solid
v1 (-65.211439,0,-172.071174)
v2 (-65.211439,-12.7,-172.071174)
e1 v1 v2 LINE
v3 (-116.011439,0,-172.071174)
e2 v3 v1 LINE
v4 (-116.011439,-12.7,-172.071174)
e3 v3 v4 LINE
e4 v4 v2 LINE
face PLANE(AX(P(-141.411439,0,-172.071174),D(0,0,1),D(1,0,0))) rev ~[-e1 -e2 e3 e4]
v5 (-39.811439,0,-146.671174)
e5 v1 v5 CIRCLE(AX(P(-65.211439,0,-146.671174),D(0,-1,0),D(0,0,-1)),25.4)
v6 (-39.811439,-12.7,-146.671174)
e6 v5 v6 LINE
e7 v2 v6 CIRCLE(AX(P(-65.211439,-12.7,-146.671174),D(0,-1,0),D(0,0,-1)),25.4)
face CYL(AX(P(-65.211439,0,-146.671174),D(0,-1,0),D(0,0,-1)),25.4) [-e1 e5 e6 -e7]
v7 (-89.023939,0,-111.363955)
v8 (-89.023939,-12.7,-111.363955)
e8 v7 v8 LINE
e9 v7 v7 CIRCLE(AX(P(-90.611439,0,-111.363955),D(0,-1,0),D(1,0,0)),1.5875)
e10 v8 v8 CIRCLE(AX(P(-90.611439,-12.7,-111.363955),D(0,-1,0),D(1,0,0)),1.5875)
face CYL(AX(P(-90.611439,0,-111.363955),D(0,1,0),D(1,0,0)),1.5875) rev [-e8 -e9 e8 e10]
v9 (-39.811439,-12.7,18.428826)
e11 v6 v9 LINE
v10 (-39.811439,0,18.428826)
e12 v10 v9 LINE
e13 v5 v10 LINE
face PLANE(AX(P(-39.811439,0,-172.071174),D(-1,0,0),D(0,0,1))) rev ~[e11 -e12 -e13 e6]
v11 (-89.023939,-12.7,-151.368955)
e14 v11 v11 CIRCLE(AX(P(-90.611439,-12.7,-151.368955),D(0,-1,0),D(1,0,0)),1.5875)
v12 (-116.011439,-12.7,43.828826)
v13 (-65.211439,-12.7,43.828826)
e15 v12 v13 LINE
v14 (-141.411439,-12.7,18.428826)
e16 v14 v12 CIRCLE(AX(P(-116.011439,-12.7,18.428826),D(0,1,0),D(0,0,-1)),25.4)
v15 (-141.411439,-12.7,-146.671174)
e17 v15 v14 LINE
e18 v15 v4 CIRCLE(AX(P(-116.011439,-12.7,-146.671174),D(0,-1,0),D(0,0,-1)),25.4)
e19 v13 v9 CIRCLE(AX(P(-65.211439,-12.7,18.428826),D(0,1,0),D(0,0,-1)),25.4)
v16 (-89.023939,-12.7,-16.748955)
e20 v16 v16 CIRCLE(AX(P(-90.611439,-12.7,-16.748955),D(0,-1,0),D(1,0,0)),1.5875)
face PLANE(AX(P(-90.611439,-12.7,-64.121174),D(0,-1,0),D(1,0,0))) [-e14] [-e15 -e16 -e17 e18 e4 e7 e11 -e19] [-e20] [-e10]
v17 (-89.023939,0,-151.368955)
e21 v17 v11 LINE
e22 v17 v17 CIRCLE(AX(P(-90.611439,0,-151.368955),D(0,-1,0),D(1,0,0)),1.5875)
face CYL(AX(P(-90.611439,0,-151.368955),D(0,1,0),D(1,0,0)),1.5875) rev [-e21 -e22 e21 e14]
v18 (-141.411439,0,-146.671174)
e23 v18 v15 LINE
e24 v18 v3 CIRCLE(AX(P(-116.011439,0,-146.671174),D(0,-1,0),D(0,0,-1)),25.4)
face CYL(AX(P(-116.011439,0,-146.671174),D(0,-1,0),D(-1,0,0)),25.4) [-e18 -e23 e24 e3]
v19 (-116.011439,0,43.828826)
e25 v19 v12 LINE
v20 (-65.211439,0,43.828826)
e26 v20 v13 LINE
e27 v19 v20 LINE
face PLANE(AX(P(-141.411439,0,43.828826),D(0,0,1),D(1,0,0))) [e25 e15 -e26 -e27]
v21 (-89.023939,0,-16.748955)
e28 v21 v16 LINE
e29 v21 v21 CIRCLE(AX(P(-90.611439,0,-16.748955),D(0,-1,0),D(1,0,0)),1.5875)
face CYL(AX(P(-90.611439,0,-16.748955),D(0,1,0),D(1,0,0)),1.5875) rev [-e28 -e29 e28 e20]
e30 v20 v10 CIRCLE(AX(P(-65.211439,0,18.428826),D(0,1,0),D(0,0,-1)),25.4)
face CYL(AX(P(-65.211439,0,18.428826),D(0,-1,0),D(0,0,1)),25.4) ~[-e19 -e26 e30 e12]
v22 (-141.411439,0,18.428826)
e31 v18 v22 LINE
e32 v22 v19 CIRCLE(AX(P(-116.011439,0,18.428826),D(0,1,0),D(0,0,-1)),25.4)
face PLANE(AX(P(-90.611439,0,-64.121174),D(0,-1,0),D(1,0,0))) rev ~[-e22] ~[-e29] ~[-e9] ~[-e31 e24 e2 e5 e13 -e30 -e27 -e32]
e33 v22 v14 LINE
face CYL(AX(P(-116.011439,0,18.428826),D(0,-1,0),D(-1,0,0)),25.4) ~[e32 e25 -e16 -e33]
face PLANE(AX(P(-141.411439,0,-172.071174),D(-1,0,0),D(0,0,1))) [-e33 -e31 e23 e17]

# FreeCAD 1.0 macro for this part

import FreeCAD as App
import Part
import Sketcher
from FreeCAD import Vector
Q = App.Units.Quantity


def edges_at(feature, points):
    """Names of the edges that pass closest to the given points."""
    edges = feature.Shape.Edges
    near = lambda p: min(range(len(edges)), key=lambda i: edges[i].distToShape(Part.Vertex(*p))[0])
    return sorted({f"Edge{near(p) + 1}" for p in points})


def add_polygon(sketch, points):
    """Adds a closed chain of lines whose ends are joined by coincident constraints."""
    first, n = sketch.GeometryCount, len(points)
    for a, b in zip(points, points[1:] + points[:1]):
        sketch.addGeometry(Part.LineSegment(App.Vector(*a, 0), App.Vector(*b, 0)), False)
    for i in range(n):
        sketch.addConstraint(Sketcher.Constraint("Coincident", first + i, 2, first + (i + 1) % n, 1))

doc = App.newDocument("Part")
body = doc.addObject("PartDesign::Body", "Body")

# Sketch on XZ plane
sketch1 = body.newObject("Sketcher::SketchObject", "Sketch")
sketch1.AttachmentSupport = (doc.getObject("XZ_Plane"), [""])
sketch1.MapMode = "FlatFace"
add_polygon(sketch1, [(-141.4, 43.8), (-141.4, -172.1), (-39.8, -172.1), (-39.8, 43.8)])  # lines 0-3
sketch1.addGeometry(Part.Circle(Vector(-90.6, -151.4, 0), Vector(0, 0, 1), 1.6), False)  # 4
sketch1.addGeometry(Part.Circle(Vector(-90.6, -111.4, 0), Vector(0, 0, 1), 1.6), False)  # 5
sketch1.addGeometry(Part.Circle(Vector(-90.6, -16.7, 0), Vector(0, 0, 1), 1.6), False)  # 6
sketch1.addConstraint(Sketcher.Constraint("Vertical", 0))
sketch1.addConstraint(Sketcher.Constraint("Horizontal", 1))
sketch1.addConstraint(Sketcher.Constraint("Vertical", 2))
sketch1.addConstraint(Sketcher.Constraint("Horizontal", 3))
sketch1.addConstraint(Sketcher.Constraint("Equal", 4, 5))
sketch1.addConstraint(Sketcher.Constraint("Equal", 5, 6))
sketch1.addConstraint(Sketcher.Constraint("Vertical", 4, 3, 5, 3))
sketch1.addConstraint(Sketcher.Constraint("Vertical", 5, 3, 6, 3))
sketch1.addConstraint(Sketcher.Constraint("DistanceX", 1, 1, 1, 2, Q("4 in")))
sketch1.addConstraint(Sketcher.Constraint("Diameter", 4, Q("0.125 in")))
sketch1.addConstraint(Sketcher.Constraint("DistanceY", 0, 2, 0, 1, Q("8.5 in")))
sketch1.addConstraint(Sketcher.Constraint("DistanceX", 0, 2, 4, 3, Q("2 in")))
sketch1.addConstraint(Sketcher.Constraint("DistanceY", 4, 3, 6, 3, Q("5.3 in")))
sketch1.addConstraint(Sketcher.Constraint("DistanceY", 4, 3, 5, 3, Q("1.575 in")))
sketch1.addConstraint(Sketcher.Constraint("DistanceX", 4, 3, -1, 1, 90.611439))
sketch1.addConstraint(Sketcher.Constraint("DistanceY", 0, 2, 4, 3, 20.702219))
sketch1.addConstraint(Sketcher.Constraint("DistanceY", 4, 3, -1, 1, 151.368955))
pad1 = body.newObject("PartDesign::Pad", "Pad")
pad1.Profile = sketch1
pad1.Length = Q("0.5 in")
doc.recompute()

fillet = body.newObject("PartDesign::Fillet", "Fillet")
fillet.Base = (pad1, edges_at(pad1, [(-141.411, -6.35, 43.829)]))
fillet.Radius = Q("1 in")
doc.recompute()

fillet2 = body.newObject("PartDesign::Fillet", "Fillet001")
fillet2.Base = (fillet, edges_at(fillet, [(-39.811, -6.35, 43.829)]))
fillet2.Radius = Q("1 in")
doc.recompute()

fillet3 = body.newObject("PartDesign::Fillet", "Fillet002")
fillet3.Base = (fillet2, edges_at(fillet2, [(-141.411, -6.35, -172.071)]))
fillet3.Radius = Q("1 in")
doc.recompute()

fillet4 = body.newObject("PartDesign::Fillet", "Fillet003")
fillet4.Base = (fillet3, edges_at(fillet3, [(-39.811, -6.35, -172.071)]))
fillet4.Radius = Q("1 in")

doc.recompute()
